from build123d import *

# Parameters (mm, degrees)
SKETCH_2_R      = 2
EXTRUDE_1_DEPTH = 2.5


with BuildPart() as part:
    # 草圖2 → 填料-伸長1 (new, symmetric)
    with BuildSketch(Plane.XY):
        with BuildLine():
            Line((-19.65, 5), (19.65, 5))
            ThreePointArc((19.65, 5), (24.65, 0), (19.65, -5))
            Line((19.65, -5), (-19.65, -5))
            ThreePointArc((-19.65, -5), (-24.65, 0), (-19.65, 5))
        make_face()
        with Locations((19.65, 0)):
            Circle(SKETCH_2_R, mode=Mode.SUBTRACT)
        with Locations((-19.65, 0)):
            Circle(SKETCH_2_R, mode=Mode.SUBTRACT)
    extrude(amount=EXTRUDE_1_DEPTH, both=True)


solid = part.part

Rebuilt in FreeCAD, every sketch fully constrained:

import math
import FreeCAD as App
import Part
import Sketcher
Q = App.Units.Quantity

doc = App.newDocument("Part")
body = doc.addObject("PartDesign::Body", "Body")

# Sketch on XY plane
sketch1 = doc.addObject("Sketcher::SketchObject", "Sketch")
body.addObject(sketch1)
sketch1.AttachmentSupport = (doc.XY_Plane, [""])
sketch1.MapMode = "FlatFace"
sketch1.addGeometry([
    Part.LineSegment(App.Vector(19.6, 5, 0), App.Vector(-19.6, 5, 0)),  # 0
    Part.ArcOfCircle(Part.Circle(App.Vector(-19.6, 0, 0), App.Vector(0, 0, 1), 5), math.radians(90), math.radians(270)),  # 1
    Part.LineSegment(App.Vector(-19.6, -5, 0), App.Vector(19.6, -5, 0)),  # 2
    Part.ArcOfCircle(Part.Circle(App.Vector(19.6, 0, 0), App.Vector(0, 0, 1), 5), math.radians(-90), math.radians(90)),  # 3
    Part.Circle(App.Vector(19.6, 0, 0), App.Vector(0, 0, 1), 2),  # 4
    Part.Circle(App.Vector(-19.6, 0, 0), App.Vector(0, 0, 1), 2),  # 5
], False)
sketch1.addConstraint([
    Sketcher.Constraint("Tangent", 0, 2, 1, 1),
    Sketcher.Constraint("Tangent", 1, 2, 2, 1),
    Sketcher.Constraint("Tangent", 2, 2, 3, 1),
    Sketcher.Constraint("Tangent", 3, 2, 0, 1),
    Sketcher.Constraint("Horizontal", 0),
    Sketcher.Constraint("Horizontal", 2),
    Sketcher.Constraint("Coincident", 4, 3, 3, 3),
    Sketcher.Constraint("Coincident", 5, 3, 1, 3),
    Sketcher.Constraint("Equal", 4, 5),
    Sketcher.Constraint("Symmetric", 1, 3, 3, 3, -1, 1),
    Sketcher.Constraint("Diameter", 4, Q("4 mm")),
    Sketcher.Constraint("Radius", 1, Q("5 mm")),
    Sketcher.Constraint("DistanceX", 0, 2, 0, 1, Q("39.3 mm")),
])
pad1 = doc.addObject("PartDesign::Pad", "Pad")
body.addObject(pad1)
pad1.Profile = sketch1
pad1.Length = 5
pad1.Midplane = True

doc.recompute()
